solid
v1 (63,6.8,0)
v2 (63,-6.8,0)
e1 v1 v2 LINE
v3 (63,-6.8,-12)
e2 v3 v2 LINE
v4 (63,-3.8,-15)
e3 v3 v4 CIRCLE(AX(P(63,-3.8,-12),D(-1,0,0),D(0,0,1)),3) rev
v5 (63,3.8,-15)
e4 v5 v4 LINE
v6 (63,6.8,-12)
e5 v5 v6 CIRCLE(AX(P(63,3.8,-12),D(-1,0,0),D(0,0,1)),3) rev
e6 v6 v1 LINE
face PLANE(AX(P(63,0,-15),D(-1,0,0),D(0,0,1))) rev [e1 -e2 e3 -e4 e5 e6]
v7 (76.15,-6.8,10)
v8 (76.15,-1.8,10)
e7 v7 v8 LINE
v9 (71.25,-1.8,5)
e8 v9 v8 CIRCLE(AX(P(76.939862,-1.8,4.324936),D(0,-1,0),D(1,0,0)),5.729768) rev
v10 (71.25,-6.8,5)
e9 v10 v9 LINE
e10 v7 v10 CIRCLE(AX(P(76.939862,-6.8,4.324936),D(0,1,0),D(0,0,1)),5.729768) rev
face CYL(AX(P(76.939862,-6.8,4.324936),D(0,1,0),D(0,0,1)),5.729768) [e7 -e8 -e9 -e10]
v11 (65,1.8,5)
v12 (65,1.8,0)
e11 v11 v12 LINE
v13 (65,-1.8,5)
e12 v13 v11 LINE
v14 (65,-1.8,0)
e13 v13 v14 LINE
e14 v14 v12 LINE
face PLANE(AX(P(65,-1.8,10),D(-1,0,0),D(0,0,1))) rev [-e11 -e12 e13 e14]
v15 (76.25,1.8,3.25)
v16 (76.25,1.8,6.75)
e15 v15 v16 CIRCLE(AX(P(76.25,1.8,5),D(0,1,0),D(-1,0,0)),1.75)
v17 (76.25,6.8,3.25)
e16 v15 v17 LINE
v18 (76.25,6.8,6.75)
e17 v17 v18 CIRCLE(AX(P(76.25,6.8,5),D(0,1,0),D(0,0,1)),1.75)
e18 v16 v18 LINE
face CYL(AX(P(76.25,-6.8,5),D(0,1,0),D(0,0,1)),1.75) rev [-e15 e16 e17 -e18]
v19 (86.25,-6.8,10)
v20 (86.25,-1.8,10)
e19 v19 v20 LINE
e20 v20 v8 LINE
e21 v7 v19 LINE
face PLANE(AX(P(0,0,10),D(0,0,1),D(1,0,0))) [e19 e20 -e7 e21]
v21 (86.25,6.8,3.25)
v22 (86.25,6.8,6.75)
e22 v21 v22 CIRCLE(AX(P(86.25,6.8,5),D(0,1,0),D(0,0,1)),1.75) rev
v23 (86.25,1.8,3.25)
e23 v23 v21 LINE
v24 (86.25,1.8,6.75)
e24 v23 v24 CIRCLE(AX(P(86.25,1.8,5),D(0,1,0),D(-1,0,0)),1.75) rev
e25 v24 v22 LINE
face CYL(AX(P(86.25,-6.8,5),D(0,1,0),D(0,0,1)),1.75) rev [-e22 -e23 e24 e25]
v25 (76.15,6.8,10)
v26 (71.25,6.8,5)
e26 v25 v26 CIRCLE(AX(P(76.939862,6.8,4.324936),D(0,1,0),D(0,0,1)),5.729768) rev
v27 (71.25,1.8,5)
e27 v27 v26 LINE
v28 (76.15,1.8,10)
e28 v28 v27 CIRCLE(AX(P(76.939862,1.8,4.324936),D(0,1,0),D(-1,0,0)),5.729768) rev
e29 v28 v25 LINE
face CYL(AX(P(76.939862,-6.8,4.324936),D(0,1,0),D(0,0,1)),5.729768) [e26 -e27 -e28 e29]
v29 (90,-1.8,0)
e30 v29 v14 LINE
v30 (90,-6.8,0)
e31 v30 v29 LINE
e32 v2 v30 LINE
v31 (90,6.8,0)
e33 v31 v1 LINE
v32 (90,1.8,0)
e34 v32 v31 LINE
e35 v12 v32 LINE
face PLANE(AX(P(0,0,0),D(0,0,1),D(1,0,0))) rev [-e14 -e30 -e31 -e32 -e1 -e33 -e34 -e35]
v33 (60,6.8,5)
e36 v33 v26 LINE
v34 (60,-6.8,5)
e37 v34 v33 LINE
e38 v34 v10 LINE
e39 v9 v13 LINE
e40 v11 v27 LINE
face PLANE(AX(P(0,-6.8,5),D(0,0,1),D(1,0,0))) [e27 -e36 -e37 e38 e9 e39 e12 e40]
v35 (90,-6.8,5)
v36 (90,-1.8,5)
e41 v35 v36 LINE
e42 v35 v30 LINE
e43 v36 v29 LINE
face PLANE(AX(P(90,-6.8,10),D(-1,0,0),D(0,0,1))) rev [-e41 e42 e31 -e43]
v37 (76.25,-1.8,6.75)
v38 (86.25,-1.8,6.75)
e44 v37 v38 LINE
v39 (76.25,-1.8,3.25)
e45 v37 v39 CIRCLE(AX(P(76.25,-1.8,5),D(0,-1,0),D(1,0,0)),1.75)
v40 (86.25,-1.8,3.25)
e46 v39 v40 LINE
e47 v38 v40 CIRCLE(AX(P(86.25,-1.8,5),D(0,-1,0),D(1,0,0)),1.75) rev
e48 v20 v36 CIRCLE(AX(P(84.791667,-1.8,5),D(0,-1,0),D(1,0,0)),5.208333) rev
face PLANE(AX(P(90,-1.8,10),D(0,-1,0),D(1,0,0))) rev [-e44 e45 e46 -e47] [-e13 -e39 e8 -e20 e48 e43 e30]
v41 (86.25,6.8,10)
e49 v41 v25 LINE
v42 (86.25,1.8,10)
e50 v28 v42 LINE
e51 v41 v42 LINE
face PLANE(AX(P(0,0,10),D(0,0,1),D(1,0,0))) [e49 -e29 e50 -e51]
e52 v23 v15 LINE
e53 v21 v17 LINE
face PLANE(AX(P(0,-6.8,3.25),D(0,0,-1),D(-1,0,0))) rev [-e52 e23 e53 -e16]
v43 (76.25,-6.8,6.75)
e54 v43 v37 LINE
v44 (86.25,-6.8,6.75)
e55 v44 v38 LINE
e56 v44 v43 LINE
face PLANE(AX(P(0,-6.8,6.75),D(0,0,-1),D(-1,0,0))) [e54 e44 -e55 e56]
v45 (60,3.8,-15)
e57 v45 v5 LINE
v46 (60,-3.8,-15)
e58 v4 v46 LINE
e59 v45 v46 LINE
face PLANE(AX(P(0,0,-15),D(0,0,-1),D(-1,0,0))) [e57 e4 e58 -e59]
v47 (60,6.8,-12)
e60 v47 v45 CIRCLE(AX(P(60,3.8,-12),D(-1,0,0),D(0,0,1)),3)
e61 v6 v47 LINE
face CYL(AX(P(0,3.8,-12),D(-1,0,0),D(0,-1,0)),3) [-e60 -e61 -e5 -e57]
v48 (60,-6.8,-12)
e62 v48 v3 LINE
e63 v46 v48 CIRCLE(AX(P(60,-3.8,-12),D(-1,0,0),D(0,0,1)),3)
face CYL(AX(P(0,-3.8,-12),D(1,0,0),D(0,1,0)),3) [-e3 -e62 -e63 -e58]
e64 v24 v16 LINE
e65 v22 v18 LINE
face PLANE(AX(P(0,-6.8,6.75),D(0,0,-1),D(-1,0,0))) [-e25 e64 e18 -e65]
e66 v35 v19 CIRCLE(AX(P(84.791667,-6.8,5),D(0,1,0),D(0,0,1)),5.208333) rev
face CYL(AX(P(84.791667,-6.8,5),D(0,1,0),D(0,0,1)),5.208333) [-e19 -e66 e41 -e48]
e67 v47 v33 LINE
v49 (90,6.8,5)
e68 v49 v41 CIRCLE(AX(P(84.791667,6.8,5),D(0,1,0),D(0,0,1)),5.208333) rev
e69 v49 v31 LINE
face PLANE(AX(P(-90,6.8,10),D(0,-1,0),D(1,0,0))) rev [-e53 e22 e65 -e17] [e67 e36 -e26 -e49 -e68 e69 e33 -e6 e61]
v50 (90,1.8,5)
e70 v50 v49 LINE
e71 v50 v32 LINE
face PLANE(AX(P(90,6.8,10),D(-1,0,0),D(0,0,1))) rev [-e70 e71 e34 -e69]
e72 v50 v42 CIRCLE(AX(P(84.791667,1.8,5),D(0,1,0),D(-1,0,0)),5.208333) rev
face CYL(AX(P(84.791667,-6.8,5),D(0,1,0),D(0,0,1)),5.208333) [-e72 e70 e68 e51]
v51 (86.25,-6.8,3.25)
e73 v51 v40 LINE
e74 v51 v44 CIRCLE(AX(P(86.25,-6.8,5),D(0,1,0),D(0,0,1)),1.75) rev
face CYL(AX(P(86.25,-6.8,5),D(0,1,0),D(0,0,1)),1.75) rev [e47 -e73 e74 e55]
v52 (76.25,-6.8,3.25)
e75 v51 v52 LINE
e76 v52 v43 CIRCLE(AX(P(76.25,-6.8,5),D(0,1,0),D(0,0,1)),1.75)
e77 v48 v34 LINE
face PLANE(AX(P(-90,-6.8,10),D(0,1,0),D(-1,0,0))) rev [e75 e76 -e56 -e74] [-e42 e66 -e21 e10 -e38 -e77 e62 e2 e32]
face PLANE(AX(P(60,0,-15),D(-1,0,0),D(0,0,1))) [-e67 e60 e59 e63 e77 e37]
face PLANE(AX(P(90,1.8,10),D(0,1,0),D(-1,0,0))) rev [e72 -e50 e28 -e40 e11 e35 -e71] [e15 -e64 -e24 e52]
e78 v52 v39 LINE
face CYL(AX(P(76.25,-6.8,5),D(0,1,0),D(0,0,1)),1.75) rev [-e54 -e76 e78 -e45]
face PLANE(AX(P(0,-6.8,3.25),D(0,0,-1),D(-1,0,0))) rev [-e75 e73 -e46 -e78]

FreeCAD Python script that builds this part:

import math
import FreeCAD as App
import Part
import Sketcher
Q = App.Units.Quantity


def edges_at(feature, points):
    """Names of the edges that pass closest to the given points."""
    edges = feature.Shape.Edges
    near = lambda p: min(range(len(edges)), key=lambda i: edges[i].distToShape(Part.Vertex(*p))[0])
    return sorted({f"Edge{near(p) + 1}" for p in points})

doc = App.newDocument("Part")
params = doc.addObject("Spreadsheet::Sheet", "Params")
for row, (alias, value) in enumerate([
    ("sketch1_width", "180 mm"),
    ("sketch1_width2", "25 mm"),
    ("sketch1_height", "5 mm"),
    ("sketch1_height2", "3.6 mm"),
    ("pad1_length", "10 mm"),
    ("sketch2_width", "10 mm"),
    ("sketch2_height", "5 mm"),
    ("sketch2_radius", "1.75 mm"),
    ("sketch2_width2", "142.5 mm"),
    ("sketch2_width3", "152.3 mm"),
    ("sketch3_width", "3 mm"),
    ("sketch3_height", "13.6 mm"),
    ("pad2_length", "15 mm"),
    ("chamfer_size", "10 mm"),
    ("chamfer_size2", "2.679492 mm"),
    ("fillet_radius", "3 mm"),
], start=1):
    params.set(f"A{row}", alias)
    params.set(f"B{row}", "=" + value)
    params.setAlias(f"B{row}", alias)

body = doc.addObject("PartDesign::Body", "Body")

# Sketch on XY plane
sketch1 = body.newObject("Sketcher::SketchObject", "Sketch")
sketch1.AttachmentSupport = (doc.getObject("XY_Plane"), [""])
sketch1.MapMode = "FlatFace"
sketch1.addGeometry(Part.LineSegment(App.Vector(-90, -1.8, 0), App.Vector(-90, -6.8, 0)), False)
sketch1.addGeometry(Part.LineSegment(App.Vector(-90, -6.8, 0), App.Vector(90, -6.8, 0)), False)
sketch1.addGeometry(Part.LineSegment(App.Vector(90, -6.8, 0), App.Vector(90, -1.8, 0)), False)
sketch1.addGeometry(Part.LineSegment(App.Vector(90, -1.8, 0), App.Vector(65, -1.8, 0)), False)
sketch1.addGeometry(Part.LineSegment(App.Vector(65, -1.8, 0), App.Vector(65, 1.8, 0)), False)
sketch1.addGeometry(Part.LineSegment(App.Vector(65, 1.8, 0), App.Vector(90, 1.8, 0)), False)
sketch1.addGeometry(Part.LineSegment(App.Vector(90, 1.8, 0), App.Vector(90, 6.8, 0)), False)
sketch1.addGeometry(Part.LineSegment(App.Vector(90, 6.8, 0), App.Vector(-90, 6.8, 0)), False)
sketch1.addGeometry(Part.LineSegment(App.Vector(-90, 6.8, 0), App.Vector(-90, 1.8, 0)), False)
sketch1.addGeometry(Part.LineSegment(App.Vector(-90, 1.8, 0), App.Vector(-65, 1.8, 0)), False)
sketch1.addGeometry(Part.LineSegment(App.Vector(-65, 1.8, 0), App.Vector(-65, -1.8, 0)), False)
sketch1.addGeometry(Part.LineSegment(App.Vector(-65, -1.8, 0), App.Vector(-90, -1.8, 0)), False)
sketch1.addConstraint(Sketcher.Constraint("Coincident", 0, 2, 1, 1))
sketch1.addConstraint(Sketcher.Constraint("Coincident", 1, 2, 2, 1))
sketch1.addConstraint(Sketcher.Constraint("Coincident", 2, 2, 3, 1))
sketch1.addConstraint(Sketcher.Constraint("Coincident", 3, 2, 4, 1))
sketch1.addConstraint(Sketcher.Constraint("Coincident", 4, 2, 5, 1))
sketch1.addConstraint(Sketcher.Constraint("Coincident", 5, 2, 6, 1))
sketch1.addConstraint(Sketcher.Constraint("Coincident", 6, 2, 7, 1))
sketch1.addConstraint(Sketcher.Constraint("Coincident", 7, 2, 8, 1))
sketch1.addConstraint(Sketcher.Constraint("Coincident", 8, 2, 9, 1))
sketch1.addConstraint(Sketcher.Constraint("Coincident", 9, 2, 10, 1))
sketch1.addConstraint(Sketcher.Constraint("Coincident", 10, 2, 11, 1))
sketch1.addConstraint(Sketcher.Constraint("Coincident", 11, 2, 0, 1))
sketch1.addConstraint(Sketcher.Constraint("Vertical", 0))
sketch1.addConstraint(Sketcher.Constraint("Horizontal", 1))
sketch1.addConstraint(Sketcher.Constraint("Vertical", 2))
sketch1.addConstraint(Sketcher.Constraint("Horizontal", 3))
sketch1.addConstraint(Sketcher.Constraint("Vertical", 4))
sketch1.addConstraint(Sketcher.Constraint("Horizontal", 5))
sketch1.addConstraint(Sketcher.Constraint("Vertical", 6))
sketch1.addConstraint(Sketcher.Constraint("Horizontal", 7))
sketch1.addConstraint(Sketcher.Constraint("Vertical", 8))
sketch1.addConstraint(Sketcher.Constraint("Horizontal", 9))
sketch1.addConstraint(Sketcher.Constraint("Vertical", 10))
sketch1.addConstraint(Sketcher.Constraint("Horizontal", 11))
sketch1.addConstraint(Sketcher.Constraint("Symmetric", 0, 2, 6, 2, -1, 1))
sketch1.addConstraint(Sketcher.Constraint("Symmetric", 2, 2, 8, 2, -1, 1))
sketch1.addConstraint(Sketcher.Constraint("Symmetric", 4, 2, 10, 2, -1, 1))
sketch1.addConstraint(Sketcher.Constraint("Symmetric", 5, 2, 8, 2, -2))
sketch1.addConstraint(Sketcher.Constraint("DistanceX", 1, 1, 1, 2, Q("180 mm")))
sketch1.addConstraint(Sketcher.Constraint("DistanceX", 3, 2, 3, 1, Q("25 mm")))
sketch1.addConstraint(Sketcher.Constraint("DistanceY", 0, 2, 0, 1, Q("5 mm")))
sketch1.addConstraint(Sketcher.Constraint("DistanceY", 4, 1, 4, 2, Q("3.6 mm")))
sketch1.setExpression("Constraints[28]", "Params.sketch1_width")
sketch1.setExpression("Constraints[29]", "Params.sketch1_width2")
sketch1.setExpression("Constraints[30]", "Params.sketch1_height")
sketch1.setExpression("Constraints[31]", "Params.sketch1_height2")
pad1 = body.newObject("PartDesign::Pad", "Pad")
pad1.Profile = sketch1
pad1.setExpression("Length", "Params.pad1_length")

# Sketch on XZ plane
sketch2 = body.newObject("Sketcher::SketchObject", "Sketch001")
sketch2.AttachmentSupport = (doc.getObject("XZ_Plane"), [""])
sketch2.MapMode = "FlatFace"
sketch2.AttachmentOffset = App.Placement(App.Vector(0, 0, -6.8), App.Rotation())
sketch2.addGeometry(Part.LineSegment(App.Vector(-76.2, 3.2, 0), App.Vector(-86.2, 3.2, 0)), False)
sketch2.addGeometry(Part.ArcOfCircle(Part.Circle(App.Vector(-86.2, 5, 0), App.Vector(0, 0, 1), 1.8), math.radians(90), math.radians(270)), False)
sketch2.addGeometry(Part.LineSegment(App.Vector(-86.2, 6.8, 0), App.Vector(-76.2, 6.8, 0)), False)
sketch2.addGeometry(Part.ArcOfCircle(Part.Circle(App.Vector(-76.2, 5, 0), App.Vector(0, 0, 1), 1.8), math.radians(-90), math.radians(90)), False)
sketch2.addGeometry(Part.ArcOfCircle(Part.Circle(App.Vector(-84.8, 5, 0), App.Vector(0, 0, 1), 5.2), math.radians(-180), math.radians(-106)), False)
sketch2.addGeometry(Part.LineSegment(App.Vector(-86.2, 0, 0), App.Vector(-90, 0, 0)), False)
sketch2.addGeometry(Part.LineSegment(App.Vector(-90, 0, 0), App.Vector(-90, 5, 0)), False)
sketch2.addGeometry(Part.LineSegment(App.Vector(86.2, 10, 0), App.Vector(90, 10, 0)), False)
sketch2.addGeometry(Part.LineSegment(App.Vector(90, 10, 0), App.Vector(90, 5, 0)), False)
sketch2.addGeometry(Part.ArcOfCircle(Part.Circle(App.Vector(84.8, 5, 0), App.Vector(0, 0, 1), 5.2), math.radians(0), math.radians(74)), False)
sketch2.addGeometry(Part.LineSegment(App.Vector(76.2, 6.8, 0), App.Vector(86.2, 6.8, 0)), False)
sketch2.addGeometry(Part.ArcOfCircle(Part.Circle(App.Vector(86.2, 5, 0), App.Vector(0, 0, 1), 1.8), math.radians(-90), math.radians(90)), False)
sketch2.addGeometry(Part.LineSegment(App.Vector(86.2, 3.2, 0), App.Vector(76.2, 3.2, 0)), False)
sketch2.addGeometry(Part.ArcOfCircle(Part.Circle(App.Vector(76.2, 5, 0), App.Vector(0, 0, 1), 1.8), math.radians(90), math.radians(270)), False)
sketch2.addGeometry(Part.LineSegment(App.Vector(71.2, 5, 0), App.Vector(-71.2, 5, 0)), False)
sketch2.addGeometry(Part.ArcOfCircle(Part.Circle(App.Vector(-76.9, 4.3, 0), App.Vector(0, 0, 1), 5.7), math.radians(7), math.radians(82)), False)
sketch2.addGeometry(Part.LineSegment(App.Vector(-76.2, 10, 0), App.Vector(76.2, 10, 0)), False)
sketch2.addGeometry(Part.ArcOfCircle(Part.Circle(App.Vector(76.9, 4.3, 0), App.Vector(0, 0, 1), 5.7), math.radians(98), math.radians(173)), False)
sketch2.addConstraint(Sketcher.Constraint("Tangent", 0, 2, 1, 2))
sketch2.addConstraint(Sketcher.Constraint("Tangent", 1, 1, 2, 1))
sketch2.addConstraint(Sketcher.Constraint("Tangent", 2, 2, 3, 2))
sketch2.addConstraint(Sketcher.Constraint("Tangent", 3, 1, 0, 1))
sketch2.addConstraint(Sketcher.Constraint("Coincident", 4, 2, 5, 1))
sketch2.addConstraint(Sketcher.Constraint("Coincident", 5, 2, 6, 1))
sketch2.addConstraint(Sketcher.Constraint("Tangent", 6, 2, 4, 1))
sketch2.addConstraint(Sketcher.Constraint("Coincident", 7, 2, 8, 1))
sketch2.addConstraint(Sketcher.Constraint("Tangent", 8, 2, 9, 1))
sketch2.addConstraint(Sketcher.Constraint("Coincident", 9, 2, 7, 1))
sketch2.addConstraint(Sketcher.Constraint("Tangent", 10, 2, 11, 2))
sketch2.addConstraint(Sketcher.Constraint("Tangent", 11, 1, 12, 1))
sketch2.addConstraint(Sketcher.Constraint("Tangent", 12, 2, 13, 2))
sketch2.addConstraint(Sketcher.Constraint("Tangent", 13, 1, 10, 1))
sketch2.addConstraint(Sketcher.Constraint("Coincident", 14, 2, 15, 1))
sketch2.addConstraint(Sketcher.Constraint("Coincident", 15, 2, 16, 1))
sketch2.addConstraint(Sketcher.Constraint("Coincident", 16, 2, 17, 1))
sketch2.addConstraint(Sketcher.Constraint("Coincident", 17, 2, 14, 1))
sketch2.addConstraint(Sketcher.Constraint("Horizontal", 0))
sketch2.addConstraint(Sketcher.Constraint("Horizontal", 2))
sketch2.addConstraint(Sketcher.Constraint("Horizontal", 5))
sketch2.addConstraint(Sketcher.Constraint("Vertical", 6))
sketch2.addConstraint(Sketcher.Constraint("Horizontal", 7))
sketch2.addConstraint(Sketcher.Constraint("Vertical", 8))
sketch2.addConstraint(Sketcher.Constraint("Horizontal", 10))
sketch2.addConstraint(Sketcher.Constraint("Horizontal", 12))
sketch2.addConstraint(Sketcher.Constraint("Horizontal", 14))
sketch2.addConstraint(Sketcher.Constraint("Horizontal", 16))
sketch2.addConstraint(Sketcher.Constraint("Equal", 4, 9))
sketch2.addConstraint(Sketcher.Constraint("Equal", 3, 11))
sketch2.addConstraint(Sketcher.Constraint("Equal", 15, 17))
sketch2.addConstraint(Sketcher.Constraint("Symmetric", 4, 3, 9, 3, -2))
sketch2.addConstraint(Sketcher.Constraint("Symmetric", 1, 3, 11, 3, -2))
sketch2.addConstraint(Sketcher.Constraint("Symmetric", 15, 3, 17, 3, -2))
sketch2.addConstraint(Sketcher.Constraint("PointOnObject", 4, 2, -1))
sketch2.addConstraint(Sketcher.Constraint("Horizontal", 3, 3, 4, 3))
sketch2.addConstraint(Sketcher.Constraint("Horizontal", 8, 2, 14, 2))
sketch2.addConstraint(Sketcher.Constraint("Horizontal", 9, 2, 15, 2))
sketch2.addConstraint(Sketcher.Constraint("Vertical", 1, 1, 4, 2))
sketch2.addConstraint(Sketcher.Constraint("Vertical", 11, 3, 9, 2))
sketch2.addConstraint(Sketcher.Constraint("Equal", 2, 10))
sketch2.addConstraint(Sketcher.Constraint("DistanceX", 0, 2, 0, 1, Q("10 mm")))
sketch2.addConstraint(Sketcher.Constraint("DistanceY", 6, 1, 6, 2, Q("5 mm")))
sketch2.addConstraint(Sketcher.Constraint("Radius", 1, Q("1.75 mm")))
sketch2.addConstraint(Sketcher.Constraint("DistanceX", 14, 2, 14, 1, Q("142.5 mm")))
sketch2.addConstraint(Sketcher.Constraint("DistanceX", 16, 1, 16, 2, Q("152.3 mm")))
sketch2.addConstraint(Sketcher.Constraint("DistanceX", 5, 2, -1, 1, Q("90 mm")))
sketch2.addConstraint(Sketcher.Constraint("DistanceX", 3, 3, 14, 2, Q("5 mm")))
sketch2.addConstraint(Sketcher.Constraint("Radius", 15, Q("5.729768 mm")))
sketch2.setExpression("Constraints[41]", "Params.sketch2_width")
sketch2.setExpression("Constraints[42]", "Params.sketch2_height")
sketch2.setExpression("Constraints[43]", "Params.sketch2_radius")
sketch2.setExpression("Constraints[44]", "Params.sketch2_width2")
sketch2.setExpression("Constraints[45]", "Params.sketch2_width3")
pocket1 = body.newObject("PartDesign::Pocket", "Pocket")
pocket1.Profile = sketch2
pocket1.Type = "ThroughAll"
pocket1.Reversed = True

# Sketch on XY plane
sketch3 = body.newObject("Sketcher::SketchObject", "Sketch002")
sketch3.AttachmentSupport = (doc.getObject("XY_Plane"), [""])
sketch3.MapMode = "FlatFace"
sketch3.addGeometry(Part.LineSegment(App.Vector(63, 6.8, 0), App.Vector(63, -6.8, 0)), False)
sketch3.addGeometry(Part.LineSegment(App.Vector(63, -6.8, 0), App.Vector(60, -6.8, 0)), False)
sketch3.addGeometry(Part.LineSegment(App.Vector(60, -6.8, 0), App.Vector(60, 6.8, 0)), False)
sketch3.addGeometry(Part.LineSegment(App.Vector(60, 6.8, 0), App.Vector(63, 6.8, 0)), False)
sketch3.addGeometry(Part.LineSegment(App.Vector(-60, 6.8, 0), App.Vector(-60, -6.8, 0)), False)
sketch3.addGeometry(Part.LineSegment(App.Vector(-60, -6.8, 0), App.Vector(-63, -6.8, 0)), False)
sketch3.addGeometry(Part.LineSegment(App.Vector(-63, -6.8, 0), App.Vector(-63, 6.8, 0)), False)
sketch3.addGeometry(Part.LineSegment(App.Vector(-63, 6.8, 0), App.Vector(-60, 6.8, 0)), False)
sketch3.addConstraint(Sketcher.Constraint("Coincident", 0, 2, 1, 1))
sketch3.addConstraint(Sketcher.Constraint("Coincident", 1, 2, 2, 1))
sketch3.addConstraint(Sketcher.Constraint("Coincident", 2, 2, 3, 1))
sketch3.addConstraint(Sketcher.Constraint("Coincident", 3, 2, 0, 1))
sketch3.addConstraint(Sketcher.Constraint("Coincident", 4, 2, 5, 1))
sketch3.addConstraint(Sketcher.Constraint("Coincident", 5, 2, 6, 1))
sketch3.addConstraint(Sketcher.Constraint("Coincident", 6, 2, 7, 1))
sketch3.addConstraint(Sketcher.Constraint("Coincident", 7, 2, 4, 1))
sketch3.addConstraint(Sketcher.Constraint("Vertical", 0))
sketch3.addConstraint(Sketcher.Constraint("Horizontal", 1))
sketch3.addConstraint(Sketcher.Constraint("Vertical", 2))
sketch3.addConstraint(Sketcher.Constraint("Horizontal", 3))
sketch3.addConstraint(Sketcher.Constraint("Vertical", 4))
sketch3.addConstraint(Sketcher.Constraint("Horizontal", 5))
sketch3.addConstraint(Sketcher.Constraint("Vertical", 6))
sketch3.addConstraint(Sketcher.Constraint("Horizontal", 7))
sketch3.addConstraint(Sketcher.Constraint("Symmetric", 2, 2, 4, 2, -1, 1))
sketch3.addConstraint(Sketcher.Constraint("Symmetric", 0, 2, 6, 2, -1, 1))
sketch3.addConstraint(Sketcher.Constraint("Horizontal", 1, 2, 4, 2))
sketch3.addConstraint(Sketcher.Constraint("DistanceX", 1, 2, 1, 1, Q("3 mm")))
sketch3.addConstraint(Sketcher.Constraint("DistanceY", 0, 2, 0, 1, Q("13.6 mm")))
sketch3.addConstraint(Sketcher.Constraint("DistanceX", -1, 1, 0, 2, Q("63 mm")))
sketch3.setExpression("Constraints[19]", "Params.sketch3_width")
sketch3.setExpression("Constraints[20]", "Params.sketch3_height")
pad2 = body.newObject("PartDesign::Pad", "Pad001")
pad2.Profile = sketch3
pad2.setExpression("Length", "Params.pad2_length")
pad2.Reversed = True
doc.recompute()

chamfer = body.newObject("PartDesign::Chamfer", "Chamfer")
chamfer.Base = (pad2, edges_at(pad2, [(0, -6.8, 0)]))
chamfer.ChamferType = "Two distances"
chamfer.setExpression("Size", "Params.chamfer_size")
chamfer.setExpression("Size2", "Params.chamfer_size2")
doc.recompute()

fillet = body.newObject("PartDesign::Fillet", "Fillet")
fillet.Base = (chamfer, edges_at(chamfer, [
    (61.5, 6.8, -15),
    (61.5, -6.8, -15),
    (-61.5, 6.8, -15),
    (-61.5, -6.8, -15),
]))
fillet.setExpression("Radius", "Params.fillet_radius")

# Sketch on XZ plane
sketch4 = body.newObject("Sketcher::SketchObject", "Sketch003")
sketch4.AttachmentSupport = (doc.getObject("XZ_Plane"), [""])
sketch4.MapMode = "FlatFace"
sketch4.AttachmentOffset = App.Placement(App.Vector(0, 0, 6.8), App.Rotation())
sketch4.addGeometry(Part.LineSegment(App.Vector(60, -25, 0), App.Vector(60, 24, 0)), False)
sketch4.addGeometry(Part.LineSegment(App.Vector(60, 24, 0), App.Vector(-107, 24, 0)), False)
sketch4.addGeometry(Part.LineSegment(App.Vector(-107, 24, 0), App.Vector(-107, -25, 0)), False)
sketch4.addGeometry(Part.LineSegment(App.Vector(-107, -25, 0), App.Vector(60, -25, 0)), False)
sketch4.addConstraint(Sketcher.Constraint("Coincident", 0, 2, 1, 1))
sketch4.addConstraint(Sketcher.Constraint("Coincident", 1, 2, 2, 1))
sketch4.addConstraint(Sketcher.Constraint("Coincident", 2, 2, 3, 1))
sketch4.addConstraint(Sketcher.Constraint("Coincident", 3, 2, 0, 1))
sketch4.addConstraint(Sketcher.Constraint("Vertical", 0))
sketch4.addConstraint(Sketcher.Constraint("Horizontal", 1))
sketch4.addConstraint(Sketcher.Constraint("Vertical", 2))
sketch4.addConstraint(Sketcher.Constraint("Horizontal", 3))
sketch4.addConstraint(Sketcher.Constraint("DistanceX", -1, 1, 0, 2, Q("60 mm")))
sketch4.addConstraint(Sketcher.Constraint("DistanceX", 1, 2, 1, 1, Q("167.371616 mm")))
sketch4.addConstraint(Sketcher.Constraint("DistanceY", 0, 1, 0, 2, Q("49.121487 mm")))
sketch4.addConstraint(Sketcher.Constraint("DistanceY", -1, 1, 0, 2, Q("24.335783 mm")))
pocket2 = body.newObject("PartDesign::Pocket", "Pocket001")
pocket2.Profile = sketch4
pocket2.Type = "ThroughAll"

doc.recompute()
